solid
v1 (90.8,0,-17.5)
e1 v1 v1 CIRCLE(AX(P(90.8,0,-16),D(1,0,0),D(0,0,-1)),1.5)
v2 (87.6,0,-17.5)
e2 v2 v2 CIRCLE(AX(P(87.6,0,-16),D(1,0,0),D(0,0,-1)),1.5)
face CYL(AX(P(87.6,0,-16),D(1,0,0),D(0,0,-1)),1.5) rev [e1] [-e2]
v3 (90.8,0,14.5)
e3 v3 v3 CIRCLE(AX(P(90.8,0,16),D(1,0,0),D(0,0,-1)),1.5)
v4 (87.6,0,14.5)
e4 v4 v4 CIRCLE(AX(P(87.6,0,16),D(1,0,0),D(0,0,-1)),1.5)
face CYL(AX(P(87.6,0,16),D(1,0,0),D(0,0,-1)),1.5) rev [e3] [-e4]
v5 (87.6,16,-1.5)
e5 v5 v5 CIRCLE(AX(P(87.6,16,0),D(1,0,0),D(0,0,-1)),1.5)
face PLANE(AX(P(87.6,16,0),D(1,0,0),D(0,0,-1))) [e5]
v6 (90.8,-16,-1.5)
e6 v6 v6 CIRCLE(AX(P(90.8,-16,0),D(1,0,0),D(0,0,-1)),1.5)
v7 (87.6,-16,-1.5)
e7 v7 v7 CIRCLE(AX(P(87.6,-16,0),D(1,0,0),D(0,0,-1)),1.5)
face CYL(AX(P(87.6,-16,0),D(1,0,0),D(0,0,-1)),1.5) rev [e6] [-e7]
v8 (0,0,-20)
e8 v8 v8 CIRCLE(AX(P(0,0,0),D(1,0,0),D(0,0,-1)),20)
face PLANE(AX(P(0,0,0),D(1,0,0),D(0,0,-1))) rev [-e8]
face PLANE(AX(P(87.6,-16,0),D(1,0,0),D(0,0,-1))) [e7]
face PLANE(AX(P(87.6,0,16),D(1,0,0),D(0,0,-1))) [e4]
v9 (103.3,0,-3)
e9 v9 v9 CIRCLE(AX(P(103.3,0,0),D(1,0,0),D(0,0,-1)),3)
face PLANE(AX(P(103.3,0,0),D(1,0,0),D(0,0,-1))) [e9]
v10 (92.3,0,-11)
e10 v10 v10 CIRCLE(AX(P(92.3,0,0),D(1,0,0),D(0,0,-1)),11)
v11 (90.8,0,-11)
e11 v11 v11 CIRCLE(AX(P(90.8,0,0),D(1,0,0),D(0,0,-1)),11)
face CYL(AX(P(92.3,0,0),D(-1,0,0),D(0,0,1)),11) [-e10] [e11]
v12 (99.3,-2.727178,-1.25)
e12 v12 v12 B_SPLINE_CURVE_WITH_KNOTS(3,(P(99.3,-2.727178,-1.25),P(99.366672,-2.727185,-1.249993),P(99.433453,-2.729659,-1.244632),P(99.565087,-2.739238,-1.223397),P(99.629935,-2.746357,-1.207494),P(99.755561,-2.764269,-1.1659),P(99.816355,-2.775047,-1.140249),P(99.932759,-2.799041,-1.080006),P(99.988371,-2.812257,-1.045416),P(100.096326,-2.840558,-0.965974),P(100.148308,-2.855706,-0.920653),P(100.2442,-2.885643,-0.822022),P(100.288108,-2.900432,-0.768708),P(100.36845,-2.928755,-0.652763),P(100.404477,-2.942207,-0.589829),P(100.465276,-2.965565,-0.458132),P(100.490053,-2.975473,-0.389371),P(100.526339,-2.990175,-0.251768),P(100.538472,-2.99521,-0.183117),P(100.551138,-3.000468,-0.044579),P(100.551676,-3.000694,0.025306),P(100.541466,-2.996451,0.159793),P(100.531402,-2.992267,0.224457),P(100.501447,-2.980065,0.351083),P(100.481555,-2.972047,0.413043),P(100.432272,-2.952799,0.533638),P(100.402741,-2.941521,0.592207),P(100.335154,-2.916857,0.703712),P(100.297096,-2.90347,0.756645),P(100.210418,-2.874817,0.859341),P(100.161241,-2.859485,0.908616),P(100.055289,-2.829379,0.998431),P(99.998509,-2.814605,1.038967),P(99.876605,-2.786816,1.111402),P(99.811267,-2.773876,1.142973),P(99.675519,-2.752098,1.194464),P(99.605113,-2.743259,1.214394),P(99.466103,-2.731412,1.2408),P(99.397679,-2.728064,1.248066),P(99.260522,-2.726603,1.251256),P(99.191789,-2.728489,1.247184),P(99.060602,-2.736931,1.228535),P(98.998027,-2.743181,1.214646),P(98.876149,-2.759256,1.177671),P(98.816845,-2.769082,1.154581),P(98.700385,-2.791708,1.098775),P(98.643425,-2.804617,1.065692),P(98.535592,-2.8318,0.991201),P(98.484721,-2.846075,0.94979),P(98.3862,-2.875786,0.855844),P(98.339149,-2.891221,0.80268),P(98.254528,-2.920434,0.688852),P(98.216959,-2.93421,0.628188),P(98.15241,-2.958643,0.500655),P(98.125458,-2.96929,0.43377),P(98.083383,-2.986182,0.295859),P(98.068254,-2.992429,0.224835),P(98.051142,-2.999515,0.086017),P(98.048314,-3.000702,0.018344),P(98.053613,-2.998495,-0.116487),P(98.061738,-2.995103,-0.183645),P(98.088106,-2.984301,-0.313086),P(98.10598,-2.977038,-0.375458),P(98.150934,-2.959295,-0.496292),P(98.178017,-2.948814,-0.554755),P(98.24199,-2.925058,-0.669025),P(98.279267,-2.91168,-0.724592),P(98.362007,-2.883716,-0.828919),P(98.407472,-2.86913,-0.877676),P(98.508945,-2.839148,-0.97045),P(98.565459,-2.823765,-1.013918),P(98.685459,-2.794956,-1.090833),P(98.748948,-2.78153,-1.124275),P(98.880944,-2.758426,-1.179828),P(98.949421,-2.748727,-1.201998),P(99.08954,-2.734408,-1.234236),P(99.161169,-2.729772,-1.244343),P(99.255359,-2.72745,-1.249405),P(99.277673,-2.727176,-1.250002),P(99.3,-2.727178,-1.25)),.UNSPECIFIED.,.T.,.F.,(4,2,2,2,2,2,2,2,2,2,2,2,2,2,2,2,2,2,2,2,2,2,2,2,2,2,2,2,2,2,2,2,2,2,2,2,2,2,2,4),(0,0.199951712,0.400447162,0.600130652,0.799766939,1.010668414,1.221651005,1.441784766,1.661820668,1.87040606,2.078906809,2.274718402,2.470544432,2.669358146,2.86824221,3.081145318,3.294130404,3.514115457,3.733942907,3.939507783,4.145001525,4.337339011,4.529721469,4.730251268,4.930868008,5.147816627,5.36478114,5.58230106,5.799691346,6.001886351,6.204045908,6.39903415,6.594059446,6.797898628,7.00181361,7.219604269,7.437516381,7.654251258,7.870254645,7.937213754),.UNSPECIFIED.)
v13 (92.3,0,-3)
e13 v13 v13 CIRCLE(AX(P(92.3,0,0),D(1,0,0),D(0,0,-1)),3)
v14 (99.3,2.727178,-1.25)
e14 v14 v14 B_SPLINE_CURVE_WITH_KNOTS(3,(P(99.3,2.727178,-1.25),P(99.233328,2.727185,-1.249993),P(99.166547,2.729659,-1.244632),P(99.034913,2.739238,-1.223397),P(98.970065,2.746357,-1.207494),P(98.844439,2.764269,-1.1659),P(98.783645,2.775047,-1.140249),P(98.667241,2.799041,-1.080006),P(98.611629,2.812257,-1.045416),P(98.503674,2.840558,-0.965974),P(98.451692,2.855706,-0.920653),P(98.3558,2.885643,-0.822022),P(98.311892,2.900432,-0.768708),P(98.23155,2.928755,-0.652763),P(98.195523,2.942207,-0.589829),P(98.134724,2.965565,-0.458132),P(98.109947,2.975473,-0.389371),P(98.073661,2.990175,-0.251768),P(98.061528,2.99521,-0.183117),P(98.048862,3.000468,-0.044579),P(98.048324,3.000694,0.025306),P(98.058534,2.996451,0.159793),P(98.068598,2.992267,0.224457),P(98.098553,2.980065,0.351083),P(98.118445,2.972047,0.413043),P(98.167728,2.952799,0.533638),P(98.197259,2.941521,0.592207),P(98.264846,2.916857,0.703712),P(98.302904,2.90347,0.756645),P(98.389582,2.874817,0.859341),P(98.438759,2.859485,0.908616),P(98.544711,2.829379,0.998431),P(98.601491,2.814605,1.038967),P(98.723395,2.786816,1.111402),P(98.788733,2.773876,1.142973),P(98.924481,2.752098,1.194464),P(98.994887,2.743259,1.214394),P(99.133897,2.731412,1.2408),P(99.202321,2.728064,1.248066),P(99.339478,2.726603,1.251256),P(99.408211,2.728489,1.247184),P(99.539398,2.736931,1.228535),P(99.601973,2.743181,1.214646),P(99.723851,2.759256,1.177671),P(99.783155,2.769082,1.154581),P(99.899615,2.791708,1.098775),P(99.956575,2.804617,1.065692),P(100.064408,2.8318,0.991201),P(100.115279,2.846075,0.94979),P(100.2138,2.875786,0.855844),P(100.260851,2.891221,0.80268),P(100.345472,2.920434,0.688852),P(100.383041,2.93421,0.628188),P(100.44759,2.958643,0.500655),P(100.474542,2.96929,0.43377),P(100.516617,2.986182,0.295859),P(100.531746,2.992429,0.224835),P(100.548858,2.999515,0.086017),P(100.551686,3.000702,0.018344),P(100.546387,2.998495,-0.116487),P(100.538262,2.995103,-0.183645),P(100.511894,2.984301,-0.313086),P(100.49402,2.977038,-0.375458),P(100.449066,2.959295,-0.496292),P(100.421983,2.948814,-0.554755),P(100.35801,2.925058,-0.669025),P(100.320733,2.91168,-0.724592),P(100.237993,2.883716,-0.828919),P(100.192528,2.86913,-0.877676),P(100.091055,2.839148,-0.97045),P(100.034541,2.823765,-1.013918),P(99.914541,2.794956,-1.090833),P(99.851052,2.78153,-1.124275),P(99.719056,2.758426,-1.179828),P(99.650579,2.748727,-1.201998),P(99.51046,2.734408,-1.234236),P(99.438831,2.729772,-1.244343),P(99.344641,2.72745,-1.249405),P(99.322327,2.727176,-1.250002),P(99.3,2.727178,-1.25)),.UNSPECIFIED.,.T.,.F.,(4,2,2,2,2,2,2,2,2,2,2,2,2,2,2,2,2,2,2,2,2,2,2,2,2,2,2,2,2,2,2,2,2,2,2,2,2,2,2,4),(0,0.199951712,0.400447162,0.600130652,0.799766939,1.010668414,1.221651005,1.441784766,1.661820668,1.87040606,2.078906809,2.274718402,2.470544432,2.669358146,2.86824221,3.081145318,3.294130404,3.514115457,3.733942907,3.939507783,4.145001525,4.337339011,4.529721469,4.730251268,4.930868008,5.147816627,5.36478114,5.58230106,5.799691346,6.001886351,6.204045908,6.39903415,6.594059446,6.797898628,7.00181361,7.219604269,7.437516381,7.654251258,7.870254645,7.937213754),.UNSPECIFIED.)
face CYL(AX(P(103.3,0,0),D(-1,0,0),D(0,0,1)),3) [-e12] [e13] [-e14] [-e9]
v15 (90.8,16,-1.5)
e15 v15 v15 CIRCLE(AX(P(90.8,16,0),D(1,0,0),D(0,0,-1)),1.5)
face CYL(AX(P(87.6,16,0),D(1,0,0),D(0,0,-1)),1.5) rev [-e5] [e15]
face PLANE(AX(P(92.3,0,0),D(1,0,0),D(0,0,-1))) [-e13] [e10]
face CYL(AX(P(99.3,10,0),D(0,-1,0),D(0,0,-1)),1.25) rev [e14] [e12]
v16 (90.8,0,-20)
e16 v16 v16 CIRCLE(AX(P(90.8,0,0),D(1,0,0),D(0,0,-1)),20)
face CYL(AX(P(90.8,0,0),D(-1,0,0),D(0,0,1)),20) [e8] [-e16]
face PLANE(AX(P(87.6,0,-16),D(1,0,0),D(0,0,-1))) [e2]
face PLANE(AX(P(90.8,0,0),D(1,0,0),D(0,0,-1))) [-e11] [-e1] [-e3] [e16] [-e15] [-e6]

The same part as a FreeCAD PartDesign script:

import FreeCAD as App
import Part
import Sketcher
from FreeCAD import Vector
Q = App.Units.Quantity

doc = App.newDocument("Part")
params = doc.addObject("Spreadsheet::Sheet", "Params")
for row, (alias, value) in enumerate([
    ("sketch1_diameter", "40 mm"),
    ("pad1_length", "90.8 mm"),
    ("sketch2_diameter", "22 mm"),
    ("pad2_length", "1.5 mm"),
    ("sketch3_diameter", "3 mm"),
    ("pocket1_length", "3.2 mm"),
    ("sketch4_diameter", "13 mm"),
    ("pocket2_length", "5 mm"),
    ("sketch5_diameter", "6 mm"),
    ("pad3_length", "16 mm"),
    ("sketch6_diameter", "2.5 mm"),
    ("sketch7_diameter", "13 mm"),
    ("pad4_length", "5 mm"),
], start=1):
    params.set(f"A{row}", alias)
    params.set(f"B{row}", "=" + value)
    params.setAlias(f"B{row}", alias)

body = doc.addObject("PartDesign::Body", "Body")

sketch1 = body.newObject("Sketcher::SketchObject", "Sketch")
sketch1.AttachmentSupport = (doc.getObject("YZ_Plane"), [""])
sketch1.MapMode = "FlatFace"
sketch1.addGeometry(Part.Circle(Vector(0, 0, 0), Vector(0, 0, 1), 20), False)
sketch1.addConstraint([
    Sketcher.Constraint("Coincident", 0, 3, -1, 1),
    Sketcher.Constraint("Diameter", 0, Q("40 mm")),
])
sketch1.setExpression("Constraints[1]", "Params.sketch1_diameter")
pad1 = body.newObject("PartDesign::Pad", "Pad")
pad1.Profile = sketch1
pad1.setExpression("Length", "Params.pad1_length")

sketch2 = body.newObject("Sketcher::SketchObject", "Sketch001")
sketch2.AttachmentSupport = (doc.getObject("YZ_Plane"), [""])
sketch2.MapMode = "FlatFace"
sketch2.AttachmentOffset = App.Placement(Vector(0, 0, 90.8), App.Rotation())
sketch2.addGeometry(Part.Circle(Vector(0, 0, 0), Vector(0, 0, 1), 11), False)
sketch2.addConstraint([
    Sketcher.Constraint("Coincident", 0, 3, -1, 1),
    Sketcher.Constraint("Diameter", 0, Q("22 mm")),
])
sketch2.setExpression("Constraints[1]", "Params.sketch2_diameter")
pad2 = body.newObject("PartDesign::Pad", "Pad001")
pad2.Profile = sketch2
pad2.setExpression("Length", "Params.pad2_length")

sketch3 = body.newObject("Sketcher::SketchObject", "Sketch002")
sketch3.AttachmentSupport = (doc.getObject("YZ_Plane"), [""])
sketch3.MapMode = "FlatFace"
sketch3.AttachmentOffset = App.Placement(Vector(0, 0, 90.8), App.Rotation())
sketch3.addGeometry([
    Part.Circle(Vector(16, 0, 0), Vector(0, 0, 1), 1.5),
    Part.Circle(Vector(0, -16, 0), Vector(0, 0, 1), 1.5),
    Part.Circle(Vector(-16, 0, 0), Vector(0, 0, 1), 1.5),
    Part.Circle(Vector(0, 16, 0), Vector(0, 0, 1), 1.5),
], False)
sketch3.addConstraint([
    Sketcher.Constraint("Equal", 0, 1),
    Sketcher.Constraint("Equal", 1, 2),
    Sketcher.Constraint("Equal", 2, 3),
    Sketcher.Constraint("Symmetric", 0, 3, 2, 3, -1, 1),
    Sketcher.Constraint("Symmetric", 1, 3, 3, 3, -1, 1),
    Sketcher.Constraint("PointOnObject", 0, 3, -1),
    Sketcher.Constraint("PointOnObject", 1, 3, -2),
    Sketcher.Constraint("Diameter", 0, Q("3 mm")),
    Sketcher.Constraint("DistanceX", -1, 1, 0, 3, Q("16 mm")),
    Sketcher.Constraint("DistanceY", 1, 3, -1, 1, Q("16 mm")),
])
sketch3.setExpression("Constraints[7]", "Params.sketch3_diameter")
pocket1 = body.newObject("PartDesign::Pocket", "Pocket")
pocket1.Profile = sketch3
pocket1.setExpression("Length", "Params.pocket1_length")

sketch4 = body.newObject("Sketcher::SketchObject", "Sketch003")
sketch4.AttachmentSupport = (doc.getObject("YZ_Plane"), [""])
sketch4.MapMode = "FlatFace"
sketch4.AttachmentOffset = App.Placement(Vector(0, 0, 92.3), App.Rotation())
sketch4.addGeometry(Part.Circle(Vector(0, 0, 0), Vector(0, 0, 1), 6), False)
sketch4.addConstraint([
    Sketcher.Constraint("Coincident", 0, 3, -1, 1),
    Sketcher.Constraint("Diameter", 0, Q("13 mm")),
])
sketch4.setExpression("Constraints[1]", "Params.sketch4_diameter")
pocket2 = body.newObject("PartDesign::Pocket", "Pocket001")
pocket2.Profile = sketch4
pocket2.setExpression("Length", "Params.pocket2_length")

sketch5 = body.newObject("Sketcher::SketchObject", "Sketch004")
sketch5.AttachmentSupport = (doc.getObject("YZ_Plane"), [""])
sketch5.MapMode = "FlatFace"
sketch5.AttachmentOffset = App.Placement(Vector(0, 0, 87.3), App.Rotation())
sketch5.addGeometry(Part.Circle(Vector(0, 0, 0), Vector(0, 0, 1), 3), False)
sketch5.addConstraint([
    Sketcher.Constraint("Coincident", 0, 3, -1, 1),
    Sketcher.Constraint("Diameter", 0, Q("6 mm")),
])
sketch5.setExpression("Constraints[1]", "Params.sketch5_diameter")
pad3 = body.newObject("PartDesign::Pad", "Pad002")
pad3.Profile = sketch5
pad3.setExpression("Length", "Params.pad3_length")

sketch6 = body.newObject("Sketcher::SketchObject", "Sketch005")
sketch6.AttachmentSupport = (doc.getObject("XZ_Plane"), [""])
sketch6.MapMode = "FlatFace"
sketch6.addGeometry(Part.Circle(Vector(99.3, 0, 0), Vector(0, 0, 1), 1.2), False)
sketch6.addConstraint([
    Sketcher.Constraint("PointOnObject", 0, 3, -1),
    Sketcher.Constraint("Diameter", 0, Q("2.5 mm")),
    Sketcher.Constraint("DistanceX", -1, 1, 0, 3, Q("99.3 mm")),
])
sketch6.setExpression("Constraints[1]", "Params.sketch6_diameter")
pocket3 = body.newObject("PartDesign::Pocket", "Pocket002")
pocket3.Profile = sketch6
pocket3.Type = "ThroughAll"
pocket3.Midplane = True

sketch7 = body.newObject("Sketcher::SketchObject", "Sketch006")
sketch7.AttachmentSupport = (doc.getObject("YZ_Plane"), [""])
sketch7.MapMode = "FlatFace"
sketch7.AttachmentOffset = App.Placement(Vector(0, 0, 92.3), App.Rotation())
sketch7.addGeometry(Part.Circle(Vector(0, 0, 0), Vector(0, 0, 1), 6), False)
sketch7.addConstraint([
    Sketcher.Constraint("Coincident", 0, 3, -1, 1),
    Sketcher.Constraint("Diameter", 0, Q("13 mm")),
])
sketch7.setExpression("Constraints[1]", "Params.sketch7_diameter")
pad4 = body.newObject("PartDesign::Pad", "Pad003")
pad4.Profile = sketch7
pad4.setExpression("Length", "Params.pad4_length")
pad4.Reversed = True

doc.recompute()
